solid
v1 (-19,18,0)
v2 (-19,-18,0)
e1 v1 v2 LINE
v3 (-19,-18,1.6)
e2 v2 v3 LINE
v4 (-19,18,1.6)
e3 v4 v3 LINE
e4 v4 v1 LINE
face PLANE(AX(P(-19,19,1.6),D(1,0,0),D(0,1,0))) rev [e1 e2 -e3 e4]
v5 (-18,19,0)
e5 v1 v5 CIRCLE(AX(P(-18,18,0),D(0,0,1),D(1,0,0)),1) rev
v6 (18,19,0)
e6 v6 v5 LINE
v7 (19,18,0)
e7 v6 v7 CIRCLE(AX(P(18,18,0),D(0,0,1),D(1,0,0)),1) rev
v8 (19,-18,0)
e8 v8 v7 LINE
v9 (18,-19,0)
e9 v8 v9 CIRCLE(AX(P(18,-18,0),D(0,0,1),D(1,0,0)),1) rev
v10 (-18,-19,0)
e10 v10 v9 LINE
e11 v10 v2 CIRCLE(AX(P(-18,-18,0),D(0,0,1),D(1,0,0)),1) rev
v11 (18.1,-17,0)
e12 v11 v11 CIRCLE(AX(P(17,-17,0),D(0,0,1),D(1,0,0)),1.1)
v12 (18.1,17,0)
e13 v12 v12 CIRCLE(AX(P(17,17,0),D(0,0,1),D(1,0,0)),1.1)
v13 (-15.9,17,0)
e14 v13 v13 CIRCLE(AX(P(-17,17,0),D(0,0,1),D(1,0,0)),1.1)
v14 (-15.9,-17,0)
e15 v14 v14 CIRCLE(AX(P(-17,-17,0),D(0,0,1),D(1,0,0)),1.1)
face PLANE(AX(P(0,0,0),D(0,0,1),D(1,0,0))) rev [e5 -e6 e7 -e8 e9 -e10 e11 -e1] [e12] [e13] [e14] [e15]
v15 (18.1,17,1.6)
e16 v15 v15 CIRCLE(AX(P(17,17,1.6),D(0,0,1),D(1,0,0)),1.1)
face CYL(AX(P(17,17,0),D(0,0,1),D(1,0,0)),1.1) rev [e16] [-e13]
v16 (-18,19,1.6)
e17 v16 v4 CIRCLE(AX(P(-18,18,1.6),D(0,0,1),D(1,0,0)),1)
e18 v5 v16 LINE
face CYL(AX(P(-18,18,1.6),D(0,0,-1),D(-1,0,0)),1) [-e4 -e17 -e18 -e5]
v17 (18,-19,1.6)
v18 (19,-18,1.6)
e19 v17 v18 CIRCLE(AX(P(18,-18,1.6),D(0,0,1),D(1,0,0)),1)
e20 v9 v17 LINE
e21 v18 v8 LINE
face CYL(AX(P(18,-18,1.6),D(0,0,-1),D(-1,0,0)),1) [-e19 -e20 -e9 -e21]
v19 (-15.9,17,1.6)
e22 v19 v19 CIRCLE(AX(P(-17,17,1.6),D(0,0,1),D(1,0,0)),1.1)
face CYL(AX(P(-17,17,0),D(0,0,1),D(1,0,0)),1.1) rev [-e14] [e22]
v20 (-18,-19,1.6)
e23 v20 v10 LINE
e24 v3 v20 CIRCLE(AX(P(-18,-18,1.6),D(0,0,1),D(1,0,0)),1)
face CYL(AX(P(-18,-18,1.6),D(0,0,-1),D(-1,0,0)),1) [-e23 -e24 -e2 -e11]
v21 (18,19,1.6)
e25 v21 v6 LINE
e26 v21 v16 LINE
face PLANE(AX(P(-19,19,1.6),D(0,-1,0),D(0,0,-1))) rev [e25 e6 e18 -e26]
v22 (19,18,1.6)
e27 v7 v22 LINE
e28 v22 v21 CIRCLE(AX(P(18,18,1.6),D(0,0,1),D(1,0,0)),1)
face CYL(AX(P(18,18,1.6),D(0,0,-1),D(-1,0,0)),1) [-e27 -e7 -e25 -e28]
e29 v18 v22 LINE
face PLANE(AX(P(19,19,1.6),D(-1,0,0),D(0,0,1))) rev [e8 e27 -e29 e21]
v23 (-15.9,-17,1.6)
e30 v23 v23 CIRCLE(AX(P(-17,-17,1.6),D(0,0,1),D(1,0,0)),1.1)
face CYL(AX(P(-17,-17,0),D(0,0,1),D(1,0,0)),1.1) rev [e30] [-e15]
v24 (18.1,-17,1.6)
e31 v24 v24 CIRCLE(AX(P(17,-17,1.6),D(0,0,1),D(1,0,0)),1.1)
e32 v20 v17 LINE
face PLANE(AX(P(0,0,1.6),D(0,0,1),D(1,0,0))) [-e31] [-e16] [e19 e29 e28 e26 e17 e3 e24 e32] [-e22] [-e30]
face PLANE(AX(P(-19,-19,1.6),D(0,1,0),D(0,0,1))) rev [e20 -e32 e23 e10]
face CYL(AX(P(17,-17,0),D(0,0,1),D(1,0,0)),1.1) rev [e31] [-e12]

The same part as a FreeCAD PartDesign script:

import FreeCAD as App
import Part
import Sketcher

V = App.Vector
Q = App.Units.Quantity


def edges_at(feature, points):
    """Names of the edges that pass closest to the given points."""
    edges = feature.Shape.Edges
    near = lambda p: min(range(len(edges)), key=lambda i: edges[i].distToShape(Part.Vertex(*p))[0])
    return sorted({f"Edge{near(p) + 1}" for p in points})


def add_polygon(sketch, points):
    """Adds a closed chain of lines whose ends are joined by coincident constraints."""
    first, n = sketch.GeometryCount, len(points)
    for a, b in zip(points, points[1:] + points[:1]):
        sketch.addGeometry(Part.LineSegment(App.Vector(*a, 0), App.Vector(*b, 0)), False)
    for i in range(n):
        sketch.addConstraint(Sketcher.Constraint("Coincident", first + i, 2, first + (i + 1) % n, 1))

doc = App.newDocument("Part")
body = doc.addObject("PartDesign::Body", "Body")

# Sketch on XY plane
sketch1 = body.newObject("Sketcher::SketchObject", "Sketch")
sketch1.AttachmentSupport = (doc.getObject("XY_Plane"), [""])
sketch1.MapMode = "FlatFace"
add_polygon(sketch1, [(-19, 19), (-19, -19), (19, -19), (19, 19)])  # lines 0-3
sketch1.addConstraint(Sketcher.Constraint("Vertical", 0))
sketch1.addConstraint(Sketcher.Constraint("Horizontal", 1))
sketch1.addConstraint(Sketcher.Constraint("Vertical", 2))
sketch1.addConstraint(Sketcher.Constraint("Horizontal", 3))
sketch1.addConstraint(Sketcher.Constraint("Symmetric", 0, 2, 2, 2, -1, 1))
sketch1.addConstraint(Sketcher.Constraint("Equal", 3, 0))
sketch1.addConstraint(Sketcher.Constraint("DistanceX", 1, 1, 1, 2, Q("38 mm")))
pad1 = body.newObject("PartDesign::Pad", "Pad")
pad1.Profile = sketch1
pad1.Length = 1.6

# Sketch on XY plane
sketch2 = body.newObject("Sketcher::SketchObject", "Sketch001")
sketch2.AttachmentSupport = (doc.getObject("XY_Plane"), [""])
sketch2.MapMode = "FlatFace"
sketch2.AttachmentOffset = App.Placement(V(0, 0, 1.6), App.Rotation())
sketch2.addGeometry(Part.Circle(V(-17, 17, 0), V(0, 0, 1), 1.1), False)
sketch2.addGeometry(Part.Circle(V(17, -17, 0), V(0, 0, 1), 1.1), False)
sketch2.addGeometry(Part.Circle(V(17, 17, 0), V(0, 0, 1), 1.1), False)
sketch2.addGeometry(Part.Circle(V(-17, -17, 0), V(0, 0, 1), 1.1), False)
sketch2.addConstraint(Sketcher.Constraint("Equal", 0, 1))
sketch2.addConstraint(Sketcher.Constraint("Equal", 1, 2))
sketch2.addConstraint(Sketcher.Constraint("Equal", 2, 3))
sketch2.addConstraint(Sketcher.Constraint("Symmetric", 0, 3, 1, 3, -1, 1))
sketch2.addConstraint(Sketcher.Constraint("Symmetric", 2, 3, 3, 3, -1, 1))
sketch2.addConstraint(Sketcher.Constraint("Symmetric", 0, 3, 2, 3, -2))
sketch2.addConstraint(Sketcher.Constraint("Diameter", 0, Q("2.2 mm")))
sketch2.addConstraint(Sketcher.Constraint("DistanceX", 0, 3, -1, 1, Q("17 mm")))
sketch2.addConstraint(Sketcher.Constraint("DistanceY", -1, 1, 0, 3, Q("17 mm")))
pocket1 = body.newObject("PartDesign::Pocket", "Pocket")
pocket1.Profile = sketch2
pocket1.Type = "ThroughAll"
doc.recompute()

fillet = body.newObject("PartDesign::Fillet", "Fillet")
fillet.Base = (pocket1, edges_at(pocket1, [
    (-19, 19, 0.8),
    (19, 19, 0.8),
    (19, -19, 0.8),
    (-19, -19, 0.8),
]))
fillet.Radius = 1

doc.recompute()
